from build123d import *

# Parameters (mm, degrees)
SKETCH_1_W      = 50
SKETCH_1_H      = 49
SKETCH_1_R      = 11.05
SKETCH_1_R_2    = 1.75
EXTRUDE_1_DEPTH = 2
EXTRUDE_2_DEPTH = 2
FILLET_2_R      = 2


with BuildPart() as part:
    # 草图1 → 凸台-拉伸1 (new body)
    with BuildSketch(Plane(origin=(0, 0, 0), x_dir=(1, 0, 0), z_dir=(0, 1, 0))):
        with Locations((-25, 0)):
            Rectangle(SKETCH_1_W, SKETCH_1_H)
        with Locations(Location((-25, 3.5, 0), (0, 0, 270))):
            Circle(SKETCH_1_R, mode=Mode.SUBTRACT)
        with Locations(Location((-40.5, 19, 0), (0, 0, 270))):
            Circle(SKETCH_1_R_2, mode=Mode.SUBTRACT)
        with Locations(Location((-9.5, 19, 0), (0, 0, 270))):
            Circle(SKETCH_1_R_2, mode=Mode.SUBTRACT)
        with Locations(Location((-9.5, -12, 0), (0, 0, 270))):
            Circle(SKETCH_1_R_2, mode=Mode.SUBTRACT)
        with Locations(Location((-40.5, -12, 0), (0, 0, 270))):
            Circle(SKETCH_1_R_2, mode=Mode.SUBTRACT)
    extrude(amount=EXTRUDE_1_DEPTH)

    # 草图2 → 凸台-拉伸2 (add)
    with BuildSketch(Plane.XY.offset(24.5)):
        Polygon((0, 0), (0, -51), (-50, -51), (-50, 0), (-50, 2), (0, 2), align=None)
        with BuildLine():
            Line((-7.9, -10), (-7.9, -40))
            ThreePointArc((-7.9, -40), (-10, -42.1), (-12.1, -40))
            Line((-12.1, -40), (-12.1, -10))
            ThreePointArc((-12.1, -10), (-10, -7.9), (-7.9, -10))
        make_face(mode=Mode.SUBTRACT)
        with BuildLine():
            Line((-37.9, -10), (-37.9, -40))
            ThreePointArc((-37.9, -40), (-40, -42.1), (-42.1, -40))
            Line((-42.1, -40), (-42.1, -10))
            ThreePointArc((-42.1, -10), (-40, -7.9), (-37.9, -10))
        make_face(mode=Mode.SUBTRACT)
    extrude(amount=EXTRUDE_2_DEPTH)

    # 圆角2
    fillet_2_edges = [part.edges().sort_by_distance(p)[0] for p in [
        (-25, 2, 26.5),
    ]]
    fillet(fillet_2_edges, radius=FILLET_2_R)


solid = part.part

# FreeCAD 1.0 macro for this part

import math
import FreeCAD as App
import Part
import Sketcher
from FreeCAD import Vector
Q = App.Units.Quantity


def edges_at(feature, points):
    """Names of the edges that pass closest to the given points."""
    edges = feature.Shape.Edges
    near = lambda p: min(range(len(edges)), key=lambda i: edges[i].distToShape(Part.Vertex(*p))[0])
    return sorted({f"Edge{near(p) + 1}" for p in points})


def add_polygon(sketch, points):
    """Adds a closed chain of lines whose ends are joined by coincident constraints."""
    first, n = sketch.GeometryCount, len(points)
    for a, b in zip(points, points[1:] + points[:1]):
        sketch.addGeometry(Part.LineSegment(App.Vector(*a, 0), App.Vector(*b, 0)), False)
    for i in range(n):
        sketch.addConstraint(Sketcher.Constraint("Coincident", first + i, 2, first + (i + 1) % n, 1))

doc = App.newDocument("Part")
body = doc.addObject("PartDesign::Body", "Body")

# Sketch on XZ plane
sketch1 = body.newObject("Sketcher::SketchObject", "Sketch")
sketch1.AttachmentSupport = (doc.getObject("XZ_Plane"), [""])
sketch1.MapMode = "FlatFace"
add_polygon(sketch1, [(-50, -24.5), (-50, 24.5), (0, 24.5), (0, -24.5)])  # lines 0-3
sketch1.addGeometry(Part.Circle(Vector(-40.5, 12, 0), Vector(0, 0, 1), 1.8), False)  # 4
sketch1.addGeometry(Part.Circle(Vector(-9.5, 12, 0), Vector(0, 0, 1), 1.8), False)  # 5
sketch1.addGeometry(Part.Circle(Vector(-40.5, -19, 0), Vector(0, 0, 1), 1.8), False)  # 6
sketch1.addGeometry(Part.Circle(Vector(-25, -3.5, 0), Vector(0, 0, 1), 11.1), False)  # 7
sketch1.addGeometry(Part.Circle(Vector(-9.5, -19, 0), Vector(0, 0, 1), 1.8), False)  # 8
sketch1.addConstraint(Sketcher.Constraint("Vertical", 0))
sketch1.addConstraint(Sketcher.Constraint("Horizontal", 1))
sketch1.addConstraint(Sketcher.Constraint("Vertical", 2))
sketch1.addConstraint(Sketcher.Constraint("Horizontal", 3))
sketch1.addConstraint(Sketcher.Constraint("Equal", 4, 5))
sketch1.addConstraint(Sketcher.Constraint("Equal", 5, 6))
sketch1.addConstraint(Sketcher.Constraint("Equal", 6, 8))
sketch1.addConstraint(Sketcher.Constraint("Symmetric", 1, 2, 2, 2, -1, 1))
sketch1.addConstraint(Sketcher.Constraint("Horizontal", 4, 3, 5, 3))
sketch1.addConstraint(Sketcher.Constraint("Horizontal", 6, 3, 8, 3))
sketch1.addConstraint(Sketcher.Constraint("Vertical", 4, 3, 6, 3))
sketch1.addConstraint(Sketcher.Constraint("Vertical", 5, 3, 8, 3))
sketch1.addConstraint(Sketcher.Constraint("Diameter", 4, Q("3.5 mm")))
sketch1.addConstraint(Sketcher.Constraint("Diameter", 7, Q("22.1 mm")))
sketch1.addConstraint(Sketcher.Constraint("DistanceX", 1, 1, 1, 2, Q("50 mm")))
sketch1.addConstraint(Sketcher.Constraint("DistanceY", 0, 1, 0, 2, Q("49 mm")))
sketch1.addConstraint(Sketcher.Constraint("DistanceY", -1, 1, 4, 3, Q("12 mm")))
sketch1.addConstraint(Sketcher.Constraint("DistanceY", 6, 3, -1, 1, Q("19 mm")))
sketch1.addConstraint(Sketcher.Constraint("DistanceX", 7, 3, -1, 1, Q("25 mm")))
sketch1.addConstraint(Sketcher.Constraint("DistanceX", 4, 3, 5, 3, Q("31 mm")))
sketch1.addConstraint(Sketcher.Constraint("DistanceY", 7, 3, 0, 2, Q("28 mm")))
sketch1.addConstraint(Sketcher.Constraint("DistanceX", 4, 3, -1, 1, Q("40.5 mm")))
pad1 = body.newObject("PartDesign::Pad", "Pad")
pad1.Profile = sketch1
pad1.Length = 2
pad1.Reversed = True

# Sketch on XY plane
sketch2 = body.newObject("Sketcher::SketchObject", "Sketch001")
sketch2.AttachmentSupport = (doc.getObject("XY_Plane"), [""])
sketch2.MapMode = "FlatFace"
sketch2.AttachmentOffset = App.Placement(Vector(0, 0, 24.5), App.Rotation())
add_polygon(sketch2, [(0, -51), (0, 2), (-50, 2), (-50, -51)])  # lines 0-3
sketch2.addGeometry(Part.LineSegment(Vector(-7.9, -10, 0), Vector(-7.9, -40, 0)), False)  # 4
sketch2.addGeometry(Part.ArcOfCircle(Part.Circle(Vector(-10, -40, 0), Vector(0, 0, 1), 2.1), math.radians(180), math.radians(360)), False)  # 5
sketch2.addGeometry(Part.LineSegment(Vector(-12.1, -40, 0), Vector(-12.1, -10, 0)), False)  # 6
sketch2.addGeometry(Part.ArcOfCircle(Part.Circle(Vector(-10, -10, 0), Vector(0, 0, 1), 2.1), math.radians(0), math.radians(180)), False)  # 7
sketch2.addGeometry(Part.LineSegment(Vector(-37.9, -10, 0), Vector(-37.9, -40, 0)), False)  # 8
sketch2.addGeometry(Part.ArcOfCircle(Part.Circle(Vector(-40, -40, 0), Vector(0, 0, 1), 2.1), math.radians(180), math.radians(360)), False)  # 9
sketch2.addGeometry(Part.LineSegment(Vector(-42.1, -40, 0), Vector(-42.1, -10, 0)), False)  # 10
sketch2.addGeometry(Part.ArcOfCircle(Part.Circle(Vector(-40, -10, 0), Vector(0, 0, 1), 2.1), math.radians(0), math.radians(180)), False)  # 11
sketch2.addConstraint(Sketcher.Constraint("Tangent", 4, 2, 5, 2))
sketch2.addConstraint(Sketcher.Constraint("Tangent", 5, 1, 6, 1))
sketch2.addConstraint(Sketcher.Constraint("Tangent", 6, 2, 7, 2))
sketch2.addConstraint(Sketcher.Constraint("Tangent", 7, 1, 4, 1))
sketch2.addConstraint(Sketcher.Constraint("Tangent", 8, 2, 9, 2))
sketch2.addConstraint(Sketcher.Constraint("Tangent", 9, 1, 10, 1))
sketch2.addConstraint(Sketcher.Constraint("Tangent", 10, 2, 11, 2))
sketch2.addConstraint(Sketcher.Constraint("Tangent", 11, 1, 8, 1))
sketch2.addConstraint(Sketcher.Constraint("Vertical", 0))
sketch2.addConstraint(Sketcher.Constraint("Horizontal", 1))
sketch2.addConstraint(Sketcher.Constraint("Vertical", 2))
sketch2.addConstraint(Sketcher.Constraint("Horizontal", 3))
sketch2.addConstraint(Sketcher.Constraint("Vertical", 4))
sketch2.addConstraint(Sketcher.Constraint("Vertical", 6))
sketch2.addConstraint(Sketcher.Constraint("Vertical", 8))
sketch2.addConstraint(Sketcher.Constraint("Vertical", 10))
sketch2.addConstraint(Sketcher.Constraint("Equal", 7, 9))
sketch2.addConstraint(Sketcher.Constraint("PointOnObject", 0, 2, -2))
sketch2.addConstraint(Sketcher.Constraint("Horizontal", 5, 3, 9, 3))
sketch2.addConstraint(Sketcher.Constraint("Horizontal", 7, 3, 11, 3))
sketch2.addConstraint(Sketcher.Constraint("Radius", 5, Q("2.1 mm")))
sketch2.addConstraint(Sketcher.Constraint("DistanceX", 1, 2, 1, 1, Q("50 mm")))
sketch2.addConstraint(Sketcher.Constraint("DistanceY", 0, 1, 0, 2, Q("53 mm")))
sketch2.addConstraint(Sketcher.Constraint("DistanceY", 4, 2, 4, 1, Q("30 mm")))
sketch2.addConstraint(Sketcher.Constraint("DistanceX", 5, 3, -1, 1, Q("10 mm")))
sketch2.addConstraint(Sketcher.Constraint("DistanceY", 5, 3, -1, 1, Q("40 mm")))
sketch2.addConstraint(Sketcher.Constraint("DistanceX", 9, 3, -1, 1, Q("40 mm")))
sketch2.addConstraint(Sketcher.Constraint("DistanceY", -1, 1, 0, 2, Q("2 mm")))
pad2 = body.newObject("PartDesign::Pad", "Pad001")
pad2.Profile = sketch2
pad2.Length = 2
doc.recompute()

fillet = body.newObject("PartDesign::Fillet", "Fillet")
fillet.Base = (pad2, edges_at(pad2, [(-25, 2, 26.5)]))
fillet.Radius = 2

doc.recompute()
